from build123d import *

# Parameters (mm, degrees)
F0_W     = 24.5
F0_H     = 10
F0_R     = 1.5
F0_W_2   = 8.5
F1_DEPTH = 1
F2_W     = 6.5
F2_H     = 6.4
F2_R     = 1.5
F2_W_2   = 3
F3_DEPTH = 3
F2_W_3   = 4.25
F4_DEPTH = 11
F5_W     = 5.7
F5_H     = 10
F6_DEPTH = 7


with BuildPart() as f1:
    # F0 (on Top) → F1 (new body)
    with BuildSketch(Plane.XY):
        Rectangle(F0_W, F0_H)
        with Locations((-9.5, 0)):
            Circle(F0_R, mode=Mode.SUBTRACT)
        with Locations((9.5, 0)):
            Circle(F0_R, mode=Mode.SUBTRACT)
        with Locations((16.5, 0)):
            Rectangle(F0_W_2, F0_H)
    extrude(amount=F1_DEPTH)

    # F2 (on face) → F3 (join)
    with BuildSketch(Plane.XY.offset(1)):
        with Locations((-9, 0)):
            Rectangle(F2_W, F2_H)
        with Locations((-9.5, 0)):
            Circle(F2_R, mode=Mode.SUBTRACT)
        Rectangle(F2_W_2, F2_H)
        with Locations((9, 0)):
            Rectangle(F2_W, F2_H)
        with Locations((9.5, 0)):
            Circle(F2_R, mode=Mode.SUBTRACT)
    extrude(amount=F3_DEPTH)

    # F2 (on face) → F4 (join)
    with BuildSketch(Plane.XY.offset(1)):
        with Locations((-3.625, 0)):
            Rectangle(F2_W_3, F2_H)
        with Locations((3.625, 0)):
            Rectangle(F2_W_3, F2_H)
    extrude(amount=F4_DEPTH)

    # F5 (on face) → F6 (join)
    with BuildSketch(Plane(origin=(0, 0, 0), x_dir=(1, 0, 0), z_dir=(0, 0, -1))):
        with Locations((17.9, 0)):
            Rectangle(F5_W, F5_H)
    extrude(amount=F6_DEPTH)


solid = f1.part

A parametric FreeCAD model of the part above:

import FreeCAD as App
import Part
import Sketcher
Q = App.Units.Quantity

doc = App.newDocument("Part")
params = doc.addObject("Spreadsheet::Sheet", "Params")
for row, (alias, value) in enumerate([
    ("sketch1_diameter", "3 mm"),
    ("sketch1_width", "33 mm"),
    ("sketch1_height", "10 mm"),
    ("pad1_length", "1 mm"),
    ("sketch2_diameter", "3 mm"),
    ("sketch2_width", "3 mm"),
    ("sketch2_width2", "6.5 mm"),
    ("sketch2_height", "6.4 mm"),
    ("pad2_length", "3 mm"),
    ("sketch3_height", "6.4 mm"),
    ("sketch3_width", "4.25 mm"),
    ("pad3_length", "11 mm"),
    ("sketch4_height", "10 mm"),
    ("sketch4_width", "5.7 mm"),
    ("pad4_length", "7 mm"),
], start=1):
    params.set(f"A{row}", alias)
    params.set(f"B{row}", "=" + value)
    params.setAlias(f"B{row}", alias)

body = doc.addObject("PartDesign::Body", "Body")

sketch1 = body.newObject("Sketcher::SketchObject", "Sketch")
sketch1.AttachmentSupport = (doc.getObject("XY_Plane"), [""])
sketch1.MapMode = "FlatFace"
sketch1.addGeometry([
    Part.LineSegment(App.Vector(-12.25, 5, 0), App.Vector(-12.25, -5, 0)),
    Part.LineSegment(App.Vector(-12.25, -5, 0), App.Vector(20.75, -5, 0)),
    Part.LineSegment(App.Vector(20.75, -5, 0), App.Vector(20.75, 5, 0)),
    Part.LineSegment(App.Vector(20.75, 5, 0), App.Vector(-12.25, 5, 0)),
    Part.Circle(App.Vector(-9.5, 0, 0), App.Vector(0, 0, 1), 1.5),
    Part.Circle(App.Vector(9.5, 0, 0), App.Vector(0, 0, 1), 1.5),
], False)
sketch1.addConstraint([
    Sketcher.Constraint("Coincident", 0, 2, 1, 1),
    Sketcher.Constraint("Coincident", 1, 2, 2, 1),
    Sketcher.Constraint("Coincident", 2, 2, 3, 1),
    Sketcher.Constraint("Coincident", 3, 2, 0, 1),
    Sketcher.Constraint("Vertical", 0),
    Sketcher.Constraint("Horizontal", 1),
    Sketcher.Constraint("Vertical", 2),
    Sketcher.Constraint("Horizontal", 3),
    Sketcher.Constraint("Equal", 4, 5),
    Sketcher.Constraint("Symmetric", 4, 3, 5, 3, -1, 1),
    Sketcher.Constraint("PointOnObject", 4, 3, -1),
    Sketcher.Constraint("Diameter", 4, Q("3 mm")),
    Sketcher.Constraint("DistanceX", 1, 1, 1, 2, Q("33 mm")),
    Sketcher.Constraint("DistanceY", 0, 2, 0, 1, Q("10 mm")),
    Sketcher.Constraint("DistanceY", 0, 2, -1, 1, Q("5 mm")),
    Sketcher.Constraint("DistanceX", 4, 3, 5, 3, Q("19 mm")),
    Sketcher.Constraint("DistanceX", 0, 2, -1, 1, Q("12.25 mm")),
])
sketch1.setExpression("Constraints[11]", "Params.sketch1_diameter")
sketch1.setExpression("Constraints[12]", "Params.sketch1_width")
sketch1.setExpression("Constraints[13]", "Params.sketch1_height")
pad1 = body.newObject("PartDesign::Pad", "Pad")
pad1.Profile = sketch1
pad1.setExpression("Length", "Params.pad1_length")

sketch2 = body.newObject("Sketcher::SketchObject", "Sketch001")
sketch2.AttachmentSupport = (doc.getObject("XY_Plane"), [""])
sketch2.MapMode = "FlatFace"
sketch2.AttachmentOffset = App.Placement(App.Vector(0, 0, 1), App.Rotation())
sketch2.addGeometry([
    Part.LineSegment(App.Vector(-12.25, 3.2, 0), App.Vector(-12.25, -3.2, 0)),
    Part.LineSegment(App.Vector(-12.25, -3.2, 0), App.Vector(-5.75, -3.2, 0)),
    Part.LineSegment(App.Vector(-5.75, -3.2, 0), App.Vector(-5.75, 3.2, 0)),
    Part.LineSegment(App.Vector(-5.75, 3.2, 0), App.Vector(-12.25, 3.2, 0)),
    Part.Circle(App.Vector(-9.5, 0, 0), App.Vector(0, 0, 1), 1.5),
    Part.LineSegment(App.Vector(-1.5, 3.2, 0), App.Vector(-1.5, -3.2, 0)),
    Part.LineSegment(App.Vector(-1.5, -3.2, 0), App.Vector(1.5, -3.2, 0)),
    Part.LineSegment(App.Vector(1.5, -3.2, 0), App.Vector(1.5, 3.2, 0)),
    Part.LineSegment(App.Vector(1.5, 3.2, 0), App.Vector(-1.5, 3.2, 0)),
    Part.LineSegment(App.Vector(5.75, 3.2, 0), App.Vector(5.75, -3.2, 0)),
    Part.LineSegment(App.Vector(5.75, -3.2, 0), App.Vector(12.25, -3.2, 0)),
    Part.LineSegment(App.Vector(12.25, -3.2, 0), App.Vector(12.25, 3.2, 0)),
    Part.LineSegment(App.Vector(12.25, 3.2, 0), App.Vector(5.75, 3.2, 0)),
    Part.Circle(App.Vector(9.5, 0, 0), App.Vector(0, 0, 1), 1.5),
], False)
sketch2.addConstraint([
    Sketcher.Constraint("Coincident", 0, 2, 1, 1),
    Sketcher.Constraint("Coincident", 1, 2, 2, 1),
    Sketcher.Constraint("Coincident", 2, 2, 3, 1),
    Sketcher.Constraint("Coincident", 3, 2, 0, 1),
    Sketcher.Constraint("Coincident", 5, 2, 6, 1),
    Sketcher.Constraint("Coincident", 6, 2, 7, 1),
    Sketcher.Constraint("Coincident", 7, 2, 8, 1),
    Sketcher.Constraint("Coincident", 8, 2, 5, 1),
    Sketcher.Constraint("Coincident", 9, 2, 10, 1),
    Sketcher.Constraint("Coincident", 10, 2, 11, 1),
    Sketcher.Constraint("Coincident", 11, 2, 12, 1),
    Sketcher.Constraint("Coincident", 12, 2, 9, 1),
    Sketcher.Constraint("Vertical", 0),
    Sketcher.Constraint("Horizontal", 1),
    Sketcher.Constraint("Vertical", 2),
    Sketcher.Constraint("Horizontal", 3),
    Sketcher.Constraint("Vertical", 5),
    Sketcher.Constraint("Horizontal", 6),
    Sketcher.Constraint("Vertical", 7),
    Sketcher.Constraint("Horizontal", 8),
    Sketcher.Constraint("Vertical", 9),
    Sketcher.Constraint("Horizontal", 10),
    Sketcher.Constraint("Vertical", 11),
    Sketcher.Constraint("Horizontal", 12),
    Sketcher.Constraint("Equal", 4, 13),
    Sketcher.Constraint("Symmetric", 4, 3, 13, 3, -1, 1),
    Sketcher.Constraint("Symmetric", 5, 2, 7, 2, -1, 1),
    Sketcher.Constraint("Symmetric", 2, 2, 9, 2, -1, 1),
    Sketcher.Constraint("Symmetric", 0, 2, 11, 2, -1, 1),
    Sketcher.Constraint("PointOnObject", 4, 3, -1),
    Sketcher.Constraint("Horizontal", 1, 2, 5, 2),
    Sketcher.Constraint("Horizontal", 3, 2, 7, 2),
    Sketcher.Constraint("Diameter", 4, Q("3 mm")),
    Sketcher.Constraint("DistanceX", 6, 1, 6, 2, Q("3 mm")),
    Sketcher.Constraint("DistanceX", 1, 1, 1, 2, Q("6.5 mm")),
    Sketcher.Constraint("DistanceY", 0, 2, 0, 1, Q("6.4 mm")),
    Sketcher.Constraint("DistanceX", 4, 3, 13, 3, Q("19 mm")),
    Sketcher.Constraint("DistanceX", 0, 2, -1, 1, Q("12.25 mm")),
])
sketch2.setExpression("Constraints[32]", "Params.sketch2_diameter")
sketch2.setExpression("Constraints[33]", "Params.sketch2_width")
sketch2.setExpression("Constraints[34]", "Params.sketch2_width2")
sketch2.setExpression("Constraints[35]", "Params.sketch2_height")
pad2 = body.newObject("PartDesign::Pad", "Pad001")
pad2.Profile = sketch2
pad2.setExpression("Length", "Params.pad2_length")

sketch3 = body.newObject("Sketcher::SketchObject", "Sketch002")
sketch3.AttachmentSupport = (doc.getObject("XY_Plane"), [""])
sketch3.MapMode = "FlatFace"
sketch3.AttachmentOffset = App.Placement(App.Vector(0, 0, 1), App.Rotation())
sketch3.addGeometry([
    Part.LineSegment(App.Vector(-5.75, 3.2, 0), App.Vector(-5.75, -3.2, 0)),
    Part.LineSegment(App.Vector(-5.75, -3.2, 0), App.Vector(-1.5, -3.2, 0)),
    Part.LineSegment(App.Vector(-1.5, -3.2, 0), App.Vector(-1.5, 3.2, 0)),
    Part.LineSegment(App.Vector(-1.5, 3.2, 0), App.Vector(-5.75, 3.2, 0)),
    Part.LineSegment(App.Vector(1.5, 3.2, 0), App.Vector(1.5, -3.2, 0)),
    Part.LineSegment(App.Vector(1.5, -3.2, 0), App.Vector(5.75, -3.2, 0)),
    Part.LineSegment(App.Vector(5.75, -3.2, 0), App.Vector(5.75, 3.2, 0)),
    Part.LineSegment(App.Vector(5.75, 3.2, 0), App.Vector(1.5, 3.2, 0)),
], False)
sketch3.addConstraint([
    Sketcher.Constraint("Coincident", 0, 2, 1, 1),
    Sketcher.Constraint("Coincident", 1, 2, 2, 1),
    Sketcher.Constraint("Coincident", 2, 2, 3, 1),
    Sketcher.Constraint("Coincident", 3, 2, 0, 1),
    Sketcher.Constraint("Coincident", 4, 2, 5, 1),
    Sketcher.Constraint("Coincident", 5, 2, 6, 1),
    Sketcher.Constraint("Coincident", 6, 2, 7, 1),
    Sketcher.Constraint("Coincident", 7, 2, 4, 1),
    Sketcher.Constraint("Vertical", 0),
    Sketcher.Constraint("Horizontal", 1),
    Sketcher.Constraint("Vertical", 2),
    Sketcher.Constraint("Horizontal", 3),
    Sketcher.Constraint("Vertical", 4),
    Sketcher.Constraint("Horizontal", 5),
    Sketcher.Constraint("Vertical", 6),
    Sketcher.Constraint("Horizontal", 7),
    Sketcher.Constraint("Symmetric", 2, 2, 4, 2, -1, 1),
    Sketcher.Constraint("Symmetric", 0, 2, 6, 2, -1, 1),
    Sketcher.Constraint("Horizontal", 1, 2, 4, 2),
    Sketcher.Constraint("DistanceY", 0, 2, 0, 1, Q("6.4 mm")),
    Sketcher.Constraint("DistanceX", 1, 2, 4, 2, Q("3 mm")),
    Sketcher.Constraint("DistanceX", 1, 1, 1, 2, Q("4.25 mm")),
])
sketch3.setExpression("Constraints[19]", "Params.sketch3_height")
sketch3.setExpression("Constraints[21]", "Params.sketch3_width")
pad3 = body.newObject("PartDesign::Pad", "Pad002")
pad3.Profile = sketch3
pad3.setExpression("Length", "Params.pad3_length")

sketch4 = body.newObject("Sketcher::SketchObject", "Sketch003")
sketch4.AttachmentSupport = (doc.getObject("XY_Plane"), [""])
sketch4.MapMode = "FlatFace"
sketch4.addGeometry([
    Part.LineSegment(App.Vector(15.05, -5, 0), App.Vector(15.05, 5, 0)),
    Part.LineSegment(App.Vector(15.05, 5, 0), App.Vector(20.75, 5, 0)),
    Part.LineSegment(App.Vector(20.75, 5, 0), App.Vector(20.75, -5, 0)),
    Part.LineSegment(App.Vector(20.75, -5, 0), App.Vector(15.05, -5, 0)),
], False)
sketch4.addConstraint([
    Sketcher.Constraint("Coincident", 0, 2, 1, 1),
    Sketcher.Constraint("Coincident", 1, 2, 2, 1),
    Sketcher.Constraint("Coincident", 2, 2, 3, 1),
    Sketcher.Constraint("Coincident", 3, 2, 0, 1),
    Sketcher.Constraint("Vertical", 0),
    Sketcher.Constraint("Horizontal", 1),
    Sketcher.Constraint("Vertical", 2),
    Sketcher.Constraint("Horizontal", 3),
    Sketcher.Constraint("DistanceY", 0, 1, 0, 2, Q("10 mm")),
    Sketcher.Constraint("DistanceX", 1, 1, 1, 2, Q("5.7 mm")),
    Sketcher.Constraint("DistanceY", -1, 1, 0, 2, Q("5 mm")),
    Sketcher.Constraint("DistanceX", -1, 1, 0, 2, Q("15.05 mm")),
])
sketch4.setExpression("Constraints[8]", "Params.sketch4_height")
sketch4.setExpression("Constraints[9]", "Params.sketch4_width")
pad4 = body.newObject("PartDesign::Pad", "Pad003")
pad4.Profile = sketch4
pad4.setExpression("Length", "Params.pad4_length")
pad4.Reversed = True

doc.recompute()
